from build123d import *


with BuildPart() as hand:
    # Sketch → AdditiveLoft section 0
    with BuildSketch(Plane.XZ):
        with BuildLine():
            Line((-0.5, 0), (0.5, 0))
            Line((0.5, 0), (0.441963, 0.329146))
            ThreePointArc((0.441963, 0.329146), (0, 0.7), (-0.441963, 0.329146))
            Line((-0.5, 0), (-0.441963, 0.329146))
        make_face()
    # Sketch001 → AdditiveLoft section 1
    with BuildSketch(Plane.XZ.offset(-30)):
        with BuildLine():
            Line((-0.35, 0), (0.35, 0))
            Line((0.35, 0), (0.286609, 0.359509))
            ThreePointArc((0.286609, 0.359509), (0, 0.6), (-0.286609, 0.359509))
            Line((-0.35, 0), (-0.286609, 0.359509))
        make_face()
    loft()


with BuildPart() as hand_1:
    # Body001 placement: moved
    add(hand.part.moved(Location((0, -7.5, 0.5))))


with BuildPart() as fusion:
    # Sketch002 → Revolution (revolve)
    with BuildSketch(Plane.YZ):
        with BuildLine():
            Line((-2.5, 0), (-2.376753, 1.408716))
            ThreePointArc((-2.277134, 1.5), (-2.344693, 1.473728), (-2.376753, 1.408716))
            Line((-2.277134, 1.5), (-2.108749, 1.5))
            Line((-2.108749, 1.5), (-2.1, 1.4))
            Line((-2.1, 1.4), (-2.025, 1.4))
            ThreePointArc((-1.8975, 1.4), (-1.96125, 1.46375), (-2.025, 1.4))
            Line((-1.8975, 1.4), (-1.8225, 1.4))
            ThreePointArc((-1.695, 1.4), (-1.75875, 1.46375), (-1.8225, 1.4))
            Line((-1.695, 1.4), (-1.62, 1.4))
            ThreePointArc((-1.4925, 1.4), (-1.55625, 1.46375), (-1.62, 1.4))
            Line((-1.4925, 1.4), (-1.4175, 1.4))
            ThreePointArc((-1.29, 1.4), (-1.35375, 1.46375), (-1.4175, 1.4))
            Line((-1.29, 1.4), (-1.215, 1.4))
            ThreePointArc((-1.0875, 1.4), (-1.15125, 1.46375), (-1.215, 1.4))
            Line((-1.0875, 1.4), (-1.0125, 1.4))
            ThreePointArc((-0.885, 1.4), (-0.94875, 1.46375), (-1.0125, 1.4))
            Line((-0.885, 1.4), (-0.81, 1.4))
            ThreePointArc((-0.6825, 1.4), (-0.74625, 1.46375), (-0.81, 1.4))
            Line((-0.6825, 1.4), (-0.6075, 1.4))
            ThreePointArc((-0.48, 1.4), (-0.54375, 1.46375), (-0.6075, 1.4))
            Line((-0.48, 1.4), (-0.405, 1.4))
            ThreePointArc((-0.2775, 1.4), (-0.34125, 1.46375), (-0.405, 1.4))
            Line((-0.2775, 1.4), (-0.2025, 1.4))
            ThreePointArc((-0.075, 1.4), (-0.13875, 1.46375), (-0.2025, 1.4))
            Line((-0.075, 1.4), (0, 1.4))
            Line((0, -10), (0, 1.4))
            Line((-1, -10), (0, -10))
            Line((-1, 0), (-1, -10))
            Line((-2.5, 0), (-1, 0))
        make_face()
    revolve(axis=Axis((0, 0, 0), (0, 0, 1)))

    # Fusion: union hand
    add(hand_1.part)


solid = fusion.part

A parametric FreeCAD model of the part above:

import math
import FreeCAD as App
import Part
import Sketcher
from FreeCAD import Vector
Q = App.Units.Quantity

doc = App.newDocument("Part")
body = doc.addObject("PartDesign::Body", "Body")

# Sketch on XZ plane
sketch1 = body.newObject("Sketcher::SketchObject", "Sketch")
sketch1.AttachmentSupport = (doc.getObject("XZ_Plane"), [""])
sketch1.MapMode = "FlatFace"
sketch1.addGeometry(Part.LineSegment(Vector(-0.5, 0, 0), Vector(0.5, 0, 0)), False)
sketch1.addGeometry(Part.LineSegment(Vector(0.5, 0, 0), Vector(0.441963, 0.329146, 0)), False)
sketch1.addGeometry(Part.ArcOfCircle(Part.Circle(Vector(0, 0.25122, 0), Vector(0, 0, 1), 0.44878), math.radians(9.999542), math.radians(170.000458)), False)
sketch1.addGeometry(Part.LineSegment(Vector(-0.441963, 0.329146, 0), Vector(-0.5, 0, 0)), False)
sketch1.addConstraint(Sketcher.Constraint("Coincident", 0, 2, 1, 1))
sketch1.addConstraint(Sketcher.Constraint("Coincident", 1, 2, 2, 1))
sketch1.addConstraint(Sketcher.Constraint("Coincident", 2, 2, 3, 1))
sketch1.addConstraint(Sketcher.Constraint("Coincident", 3, 2, 0, 1))
sketch1.addConstraint(Sketcher.Constraint("Horizontal", 0))
sketch1.addConstraint(Sketcher.Constraint("Symmetric", 0, 2, 3, 2, -1, 1))
sketch1.addConstraint(Sketcher.Constraint("Symmetric", 1, 2, 2, 2, -2))
sketch1.addConstraint(Sketcher.Constraint("DistanceX", 0, 1, 0, 2, 1.0))
sketch1.addConstraint(Sketcher.Constraint("Radius", 2, 0.44878))
sketch1.addConstraint(Sketcher.Constraint("DistanceY", -1, 1, 2, 3, 0.25122))
sketch1.addConstraint(Sketcher.Constraint("Distance", 1, 0.334224))

# Sketch on XZ plane
sketch2 = body.newObject("Sketcher::SketchObject", "Sketch001")
sketch2.AttachmentSupport = (doc.getObject("XZ_Plane"), [""])
sketch2.MapMode = "FlatFace"
sketch2.AttachmentOffset = App.Placement(Vector(0, 0, -30), App.Rotation())
sketch2.addGeometry(Part.LineSegment(Vector(-0.35, 0, 0), Vector(0.35, 0, 0)), False)
sketch2.addGeometry(Part.LineSegment(Vector(0.35, 0, 0), Vector(0.286609, 0.359509, 0)), False)
sketch2.addGeometry(Part.ArcOfCircle(Part.Circle(Vector(0, 0.308969, 0), Vector(0, 0, 1), 0.291031), math.radians(10.000588), math.radians(169.999412)), False)
sketch2.addGeometry(Part.LineSegment(Vector(-0.286609, 0.359509, 0), Vector(-0.35, 0, 0)), False)
sketch2.addConstraint(Sketcher.Constraint("Coincident", 0, 2, 1, 1))
sketch2.addConstraint(Sketcher.Constraint("Coincident", 1, 2, 2, 1))
sketch2.addConstraint(Sketcher.Constraint("Coincident", 2, 2, 3, 1))
sketch2.addConstraint(Sketcher.Constraint("Coincident", 3, 2, 0, 1))
sketch2.addConstraint(Sketcher.Constraint("Horizontal", 0))
sketch2.addConstraint(Sketcher.Constraint("Symmetric", 0, 2, 3, 2, -1, 1))
sketch2.addConstraint(Sketcher.Constraint("Symmetric", 1, 2, 2, 2, -2))
sketch2.addConstraint(Sketcher.Constraint("DistanceX", 0, 1, 0, 2, 0.7))
sketch2.addConstraint(Sketcher.Constraint("Radius", 2, 0.291031))
sketch2.addConstraint(Sketcher.Constraint("DistanceY", -1, 1, 2, 3, 0.308969))
sketch2.addConstraint(Sketcher.Constraint("DistanceX", -1, 1, 1, 2, 0.286609))

additiveloft = body.newObject("PartDesign::AdditiveLoft", "AdditiveLoft")
additiveloft.Profile = sketch1
additiveloft.Sections = [sketch2]
body2 = doc.addObject("PartDesign::Body", "Body001")
doc.recompute()

body.Placement = App.Placement(Vector(0, -7.5, 0.5), App.Rotation(Vector(0, 0, 1), 0))
boolean = body2.newObject("PartDesign::Boolean", "Boolean")
boolean.Type = "Fuse"
boolean.addObjects([body])
body3 = doc.addObject("PartDesign::Body", "Body002")

# Sketch on YZ plane
sketch3 = body3.newObject("Sketcher::SketchObject", "Sketch002")
sketch3.AttachmentSupport = (doc.getObject("YZ_Plane002"), [""])
sketch3.MapMode = "FlatFace"
sketch3.addGeometry(Part.LineSegment(Vector(-2.376753, 1.408716, 0), Vector(-2.5, 0, 0)), False)
sketch3.addGeometry(Part.LineSegment(Vector(-2.5, 0, 0), Vector(-1, 0, 0)), False)
sketch3.addGeometry(Part.LineSegment(Vector(-1, 0, 0), Vector(-1, -10, 0)), False)
sketch3.addGeometry(Part.LineSegment(Vector(-1, -10, 0), Vector(0, -10, 0)), False)
sketch3.addGeometry(Part.LineSegment(Vector(0, -10, 0), Vector(0, 1.4, 0)), False)
sketch3.addGeometry(Part.LineSegment(Vector(0, 1.4, 0), Vector(-0.075, 1.4, 0)), False)
sketch3.addGeometry(Part.ArcOfCircle(Part.Circle(Vector(-0.13875, 1.4, 0), Vector(0, 0, 1), 0.06375), math.radians(0), math.radians(180)), False)
sketch3.addGeometry(Part.LineSegment(Vector(-0.2025, 1.4, 0), Vector(-0.2775, 1.4, 0)), False)
sketch3.addGeometry(Part.ArcOfCircle(Part.Circle(Vector(-0.34125, 1.4, 0), Vector(0, 0, 1), 0.06375), math.radians(0), math.radians(180)), False)
sketch3.addGeometry(Part.LineSegment(Vector(-0.405, 1.4, 0), Vector(-0.48, 1.4, 0)), False)
sketch3.addGeometry(Part.ArcOfCircle(Part.Circle(Vector(-0.54375, 1.4, 0), Vector(0, 0, 1), 0.06375), math.radians(0), math.radians(180)), False)
sketch3.addGeometry(Part.LineSegment(Vector(-0.6075, 1.4, 0), Vector(-0.6825, 1.4, 0)), False)
sketch3.addGeometry(Part.ArcOfCircle(Part.Circle(Vector(-0.74625, 1.4, 0), Vector(0, 0, 1), 0.06375), math.radians(0), math.radians(180)), False)
sketch3.addGeometry(Part.LineSegment(Vector(-0.81, 1.4, 0), Vector(-0.885, 1.4, 0)), False)
sketch3.addGeometry(Part.ArcOfCircle(Part.Circle(Vector(-0.94875, 1.4, 0), Vector(0, 0, 1), 0.06375), math.radians(0), math.radians(180)), False)
sketch3.addGeometry(Part.LineSegment(Vector(-1.0125, 1.4, 0), Vector(-1.0875, 1.4, 0)), False)
sketch3.addGeometry(Part.ArcOfCircle(Part.Circle(Vector(-1.15125, 1.4, 0), Vector(0, 0, 1), 0.06375), math.radians(0), math.radians(180)), False)
sketch3.addGeometry(Part.LineSegment(Vector(-1.215, 1.4, 0), Vector(-1.29, 1.4, 0)), False)
sketch3.addGeometry(Part.ArcOfCircle(Part.Circle(Vector(-1.35375, 1.4, 0), Vector(0, 0, 1), 0.06375), math.radians(0), math.radians(180)), False)
sketch3.addGeometry(Part.LineSegment(Vector(-1.4175, 1.4, 0), Vector(-1.4925, 1.4, 0)), False)
sketch3.addGeometry(Part.ArcOfCircle(Part.Circle(Vector(-1.55625, 1.4, 0), Vector(0, 0, 1), 0.06375), math.radians(0), math.radians(180)), False)
sketch3.addGeometry(Part.LineSegment(Vector(-1.62, 1.4, 0), Vector(-1.695, 1.4, 0)), False)
sketch3.addGeometry(Part.ArcOfCircle(Part.Circle(Vector(-1.75875, 1.4, 0), Vector(0, 0, 1), 0.06375), math.radians(0), math.radians(180)), False)
sketch3.addGeometry(Part.LineSegment(Vector(-1.8225, 1.4, 0), Vector(-1.8975, 1.4, 0)), False)
sketch3.addGeometry(Part.ArcOfCircle(Part.Circle(Vector(-1.96125, 1.4, 0), Vector(0, 0, 1), 0.06375), math.radians(0), math.radians(180)), False)
sketch3.addGeometry(Part.LineSegment(Vector(-2.025, 1.4, 0), Vector(-2.1, 1.4, 0)), False)
sketch3.addGeometry(Part.LineSegment(Vector(-2.1, 1.4, 0), Vector(-2.108749, 1.5, 0)), False)
sketch3.addGeometry(Part.LineSegment(Vector(-2.108749, 1.5, 0), Vector(-2.277134, 1.5, 0)), False)
sketch3.addGeometry(Part.ArcOfCircle(Part.Circle(Vector(-2.277135, 1.400001, 0), Vector(0, 0, 1), 0.099999), math.radians(89.999549), math.radians(175.000454)), False)
sketch3.addConstraint(Sketcher.Constraint("Coincident", 0, 2, 1, 1))
sketch3.addConstraint(Sketcher.Constraint("Coincident", 1, 2, 2, 1))
sketch3.addConstraint(Sketcher.Constraint("Coincident", 2, 2, 3, 1))
sketch3.addConstraint(Sketcher.Constraint("Coincident", 3, 2, 4, 1))
sketch3.addConstraint(Sketcher.Constraint("Coincident", 4, 2, 5, 1))
sketch3.addConstraint(Sketcher.Constraint("Coincident", 5, 2, 6, 1))
sketch3.addConstraint(Sketcher.Constraint("Coincident", 6, 2, 7, 1))
sketch3.addConstraint(Sketcher.Constraint("Coincident", 7, 2, 8, 1))
sketch3.addConstraint(Sketcher.Constraint("Coincident", 8, 2, 9, 1))
sketch3.addConstraint(Sketcher.Constraint("Coincident", 9, 2, 10, 1))
sketch3.addConstraint(Sketcher.Constraint("Coincident", 10, 2, 11, 1))
sketch3.addConstraint(Sketcher.Constraint("Coincident", 11, 2, 12, 1))
sketch3.addConstraint(Sketcher.Constraint("Coincident", 12, 2, 13, 1))
sketch3.addConstraint(Sketcher.Constraint("Coincident", 13, 2, 14, 1))
sketch3.addConstraint(Sketcher.Constraint("Coincident", 14, 2, 15, 1))
sketch3.addConstraint(Sketcher.Constraint("Coincident", 15, 2, 16, 1))
sketch3.addConstraint(Sketcher.Constraint("Coincident", 16, 2, 17, 1))
sketch3.addConstraint(Sketcher.Constraint("Coincident", 17, 2, 18, 1))
sketch3.addConstraint(Sketcher.Constraint("Coincident", 18, 2, 19, 1))
sketch3.addConstraint(Sketcher.Constraint("Coincident", 19, 2, 20, 1))
sketch3.addConstraint(Sketcher.Constraint("Coincident", 20, 2, 21, 1))
sketch3.addConstraint(Sketcher.Constraint("Coincident", 21, 2, 22, 1))
sketch3.addConstraint(Sketcher.Constraint("Coincident", 22, 2, 23, 1))
sketch3.addConstraint(Sketcher.Constraint("Coincident", 23, 2, 24, 1))
sketch3.addConstraint(Sketcher.Constraint("Coincident", 24, 2, 25, 1))
sketch3.addConstraint(Sketcher.Constraint("Coincident", 25, 2, 26, 1))
sketch3.addConstraint(Sketcher.Constraint("Coincident", 26, 2, 27, 1))
sketch3.addConstraint(Sketcher.Constraint("Coincident", 27, 2, 28, 1))
sketch3.addConstraint(Sketcher.Constraint("Coincident", 28, 2, 0, 1))
sketch3.addConstraint(Sketcher.Constraint("Horizontal", 1))
sketch3.addConstraint(Sketcher.Constraint("Vertical", 2))
sketch3.addConstraint(Sketcher.Constraint("Horizontal", 3))
sketch3.addConstraint(Sketcher.Constraint("Vertical", 4))
sketch3.addConstraint(Sketcher.Constraint("Horizontal", 5))
sketch3.addConstraint(Sketcher.Constraint("Horizontal", 7))
sketch3.addConstraint(Sketcher.Constraint("Horizontal", 9))
sketch3.addConstraint(Sketcher.Constraint("Horizontal", 11))
sketch3.addConstraint(Sketcher.Constraint("Horizontal", 13))
sketch3.addConstraint(Sketcher.Constraint("Horizontal", 15))
sketch3.addConstraint(Sketcher.Constraint("Horizontal", 17))
sketch3.addConstraint(Sketcher.Constraint("Horizontal", 19))
sketch3.addConstraint(Sketcher.Constraint("Horizontal", 21))
sketch3.addConstraint(Sketcher.Constraint("Horizontal", 23))
sketch3.addConstraint(Sketcher.Constraint("Horizontal", 25))
sketch3.addConstraint(Sketcher.Constraint("Horizontal", 27))
sketch3.addConstraint(Sketcher.Constraint("Equal", 6, 8))
sketch3.addConstraint(Sketcher.Constraint("Equal", 8, 10))
sketch3.addConstraint(Sketcher.Constraint("Equal", 10, 12))
sketch3.addConstraint(Sketcher.Constraint("Equal", 12, 14))
sketch3.addConstraint(Sketcher.Constraint("Equal", 14, 16))
sketch3.addConstraint(Sketcher.Constraint("Equal", 16, 18))
sketch3.addConstraint(Sketcher.Constraint("Equal", 18, 20))
sketch3.addConstraint(Sketcher.Constraint("Equal", 20, 22))
sketch3.addConstraint(Sketcher.Constraint("Equal", 22, 24))
sketch3.addConstraint(Sketcher.Constraint("PointOnObject", 0, 2, -1))
sketch3.addConstraint(Sketcher.Constraint("PointOnObject", 3, 2, -2))
sketch3.addConstraint(Sketcher.Constraint("Horizontal", 6, 3, 8, 3))
sketch3.addConstraint(Sketcher.Constraint("Horizontal", 8, 3, 10, 3))
sketch3.addConstraint(Sketcher.Constraint("Horizontal", 10, 3, 12, 3))
sketch3.addConstraint(Sketcher.Constraint("Horizontal", 12, 3, 14, 3))
sketch3.addConstraint(Sketcher.Constraint("Horizontal", 14, 3, 16, 3))
sketch3.addConstraint(Sketcher.Constraint("Horizontal", 16, 3, 18, 3))
sketch3.addConstraint(Sketcher.Constraint("Horizontal", 18, 3, 20, 3))
sketch3.addConstraint(Sketcher.Constraint("Horizontal", 20, 3, 22, 3))
sketch3.addConstraint(Sketcher.Constraint("Horizontal", 22, 3, 24, 3))
sketch3.addConstraint(Sketcher.Constraint("Horizontal", 24, 3, 28, 3))
sketch3.addConstraint(Sketcher.Constraint("Horizontal", 28, 3, 4, 2))
sketch3.addConstraint(Sketcher.Constraint("Horizontal", 5, 2, 6, 2))
sketch3.addConstraint(Sketcher.Constraint("Horizontal", 7, 2, 8, 2))
sketch3.addConstraint(Sketcher.Constraint("Horizontal", 9, 2, 10, 2))
sketch3.addConstraint(Sketcher.Constraint("Horizontal", 11, 2, 12, 2))
sketch3.addConstraint(Sketcher.Constraint("Horizontal", 13, 2, 14, 2))
sketch3.addConstraint(Sketcher.Constraint("Horizontal", 15, 2, 16, 2))
sketch3.addConstraint(Sketcher.Constraint("Horizontal", 17, 2, 18, 2))
sketch3.addConstraint(Sketcher.Constraint("Horizontal", 19, 2, 20, 2))
sketch3.addConstraint(Sketcher.Constraint("Horizontal", 21, 2, 22, 2))
sketch3.addConstraint(Sketcher.Constraint("Horizontal", 23, 2, 24, 2))
sketch3.addConstraint(Sketcher.Constraint("Vertical", 28, 3, 27, 2))
sketch3.addConstraint(Sketcher.Constraint("Equal", 5, 7))
sketch3.addConstraint(Sketcher.Constraint("Equal", 7, 9))
sketch3.addConstraint(Sketcher.Constraint("Equal", 9, 11))
sketch3.addConstraint(Sketcher.Constraint("Equal", 11, 13))
sketch3.addConstraint(Sketcher.Constraint("Equal", 13, 15))
sketch3.addConstraint(Sketcher.Constraint("Equal", 15, 17))
sketch3.addConstraint(Sketcher.Constraint("Equal", 17, 19))
sketch3.addConstraint(Sketcher.Constraint("Equal", 19, 21))
sketch3.addConstraint(Sketcher.Constraint("Equal", 21, 23))
sketch3.addConstraint(Sketcher.Constraint("Equal", 23, 25))
sketch3.addConstraint(Sketcher.Constraint("Radius", 28, 0.099999))
sketch3.addConstraint(Sketcher.Constraint("DistanceX", 3, 1, 3, 2, 1.0))
sketch3.addConstraint(Sketcher.Constraint("DistanceY", 2, 2, 2, 1, 10.0))
sketch3.addConstraint(Sketcher.Constraint("Angle", 0, Q("-95.000013 deg")))
sketch3.addConstraint(Sketcher.Constraint("DistanceX", 1, 1, 1, 2, 1.5))
sketch3.addConstraint(Sketcher.Constraint("DistanceY", 4, 1, 4, 2, 11.4))
sketch3.addConstraint(Sketcher.Constraint("DistanceX", 25, 2, -1, 1, 2.1))
sketch3.addConstraint(Sketcher.Constraint("DistanceX", 5, 2, 5, 1, 0.075))
sketch3.addConstraint(Sketcher.Constraint("DistanceX", 26, 2, 24, 3, 0.147499))
sketch3.addConstraint(Sketcher.Constraint("DistanceX", 28, 2, 28, 3, 0.099618))
revolution = body3.newObject("PartDesign::Revolution", "Revolution")
revolution.Profile = sketch3
revolution.ReferenceAxis = (sketch3, ["V_Axis"])
revolution.Angle = 360
doc.recompute()

boolean2 = body3.newObject("PartDesign::Boolean", "Boolean001")
boolean2.Type = "Fuse"
boolean2.addObjects([body2])

doc.recompute()
